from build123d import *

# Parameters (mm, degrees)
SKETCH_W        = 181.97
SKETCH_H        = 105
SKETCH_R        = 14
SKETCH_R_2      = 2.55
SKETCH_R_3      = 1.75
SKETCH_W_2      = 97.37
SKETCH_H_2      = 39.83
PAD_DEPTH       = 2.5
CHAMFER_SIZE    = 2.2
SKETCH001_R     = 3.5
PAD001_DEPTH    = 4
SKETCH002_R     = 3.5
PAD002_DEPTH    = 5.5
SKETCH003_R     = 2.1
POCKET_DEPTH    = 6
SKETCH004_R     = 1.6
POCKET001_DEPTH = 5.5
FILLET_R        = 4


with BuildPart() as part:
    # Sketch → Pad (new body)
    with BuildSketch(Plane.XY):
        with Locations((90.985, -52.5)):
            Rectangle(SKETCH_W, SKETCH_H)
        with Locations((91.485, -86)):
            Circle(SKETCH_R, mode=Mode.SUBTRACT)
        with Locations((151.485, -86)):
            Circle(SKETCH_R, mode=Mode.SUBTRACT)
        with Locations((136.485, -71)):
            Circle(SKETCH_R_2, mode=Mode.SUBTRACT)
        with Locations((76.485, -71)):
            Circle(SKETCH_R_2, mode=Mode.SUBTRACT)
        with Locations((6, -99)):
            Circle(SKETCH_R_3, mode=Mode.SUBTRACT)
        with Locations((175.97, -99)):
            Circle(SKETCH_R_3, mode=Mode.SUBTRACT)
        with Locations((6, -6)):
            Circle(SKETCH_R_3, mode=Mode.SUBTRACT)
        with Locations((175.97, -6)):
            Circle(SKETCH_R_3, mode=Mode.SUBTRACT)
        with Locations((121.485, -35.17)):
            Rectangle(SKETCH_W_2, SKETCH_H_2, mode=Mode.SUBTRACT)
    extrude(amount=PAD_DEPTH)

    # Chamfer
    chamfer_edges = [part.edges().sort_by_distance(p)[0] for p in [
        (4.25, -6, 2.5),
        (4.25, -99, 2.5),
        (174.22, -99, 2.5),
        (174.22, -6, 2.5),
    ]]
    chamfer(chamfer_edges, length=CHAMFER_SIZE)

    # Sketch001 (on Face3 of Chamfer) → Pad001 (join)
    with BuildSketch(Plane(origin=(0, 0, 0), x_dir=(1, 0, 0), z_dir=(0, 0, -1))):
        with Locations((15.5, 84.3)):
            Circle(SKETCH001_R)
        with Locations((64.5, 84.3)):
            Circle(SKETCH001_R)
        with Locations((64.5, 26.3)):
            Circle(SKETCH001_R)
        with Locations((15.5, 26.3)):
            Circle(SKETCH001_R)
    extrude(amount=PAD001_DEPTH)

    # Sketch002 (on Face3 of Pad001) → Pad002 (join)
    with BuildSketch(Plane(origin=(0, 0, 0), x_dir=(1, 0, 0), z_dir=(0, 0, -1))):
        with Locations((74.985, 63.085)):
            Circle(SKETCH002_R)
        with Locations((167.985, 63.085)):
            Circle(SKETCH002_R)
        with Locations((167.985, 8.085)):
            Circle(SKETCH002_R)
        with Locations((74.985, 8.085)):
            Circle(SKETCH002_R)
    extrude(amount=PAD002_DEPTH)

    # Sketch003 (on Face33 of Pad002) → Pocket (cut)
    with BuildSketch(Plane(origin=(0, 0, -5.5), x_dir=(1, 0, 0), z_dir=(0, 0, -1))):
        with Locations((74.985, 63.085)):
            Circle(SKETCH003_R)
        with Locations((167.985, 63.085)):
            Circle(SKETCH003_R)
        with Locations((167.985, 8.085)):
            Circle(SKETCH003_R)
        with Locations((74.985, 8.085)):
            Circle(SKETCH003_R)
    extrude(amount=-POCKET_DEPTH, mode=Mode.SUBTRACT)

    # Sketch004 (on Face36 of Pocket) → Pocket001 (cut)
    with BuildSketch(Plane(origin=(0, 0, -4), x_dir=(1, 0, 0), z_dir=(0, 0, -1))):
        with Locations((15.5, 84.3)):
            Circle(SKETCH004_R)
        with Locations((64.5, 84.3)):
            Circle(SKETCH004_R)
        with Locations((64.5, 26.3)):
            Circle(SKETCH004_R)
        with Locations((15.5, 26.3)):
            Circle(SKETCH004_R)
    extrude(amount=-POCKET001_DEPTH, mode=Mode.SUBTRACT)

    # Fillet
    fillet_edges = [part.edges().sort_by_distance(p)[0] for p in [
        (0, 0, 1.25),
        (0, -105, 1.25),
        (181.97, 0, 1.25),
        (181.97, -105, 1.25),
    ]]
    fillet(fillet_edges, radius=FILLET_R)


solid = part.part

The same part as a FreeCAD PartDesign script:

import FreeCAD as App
import Part
import Sketcher
Q = App.Units.Quantity


def edges_at(feature, points):
    """Names of the edges that pass closest to the given points."""
    edges = feature.Shape.Edges
    near = lambda p: min(range(len(edges)), key=lambda i: edges[i].distToShape(Part.Vertex(*p))[0])
    return sorted({f"Edge{near(p) + 1}" for p in points})


def add_polygon(sketch, points):
    """Adds a closed chain of lines whose ends are joined by coincident constraints."""
    first, n = sketch.GeometryCount, len(points)
    for a, b in zip(points, points[1:] + points[:1]):
        sketch.addGeometry(Part.LineSegment(App.Vector(*a, 0), App.Vector(*b, 0)), False)
    for i in range(n):
        sketch.addConstraint(Sketcher.Constraint("Coincident", first + i, 2, first + (i + 1) % n, 1))

doc = App.newDocument("Part")
params = doc.addObject("Spreadsheet::Sheet", "Params")
for row, (alias, value) in enumerate([
    ("sketch1_diameter", "28 mm"),
    ("sketch1_diameter2", "3.5 mm"),
    ("sketch1_diameter3", "5.1 mm"),
    ("sketch1_height", "105 mm"),
    ("sketch1_width", "181.97 mm"),
    ("pad1_length", "2.5 mm"),
    ("chamfer_size", "2.2 mm"),
    ("sketch2_diameter", "7 mm"),
    ("pad2_length", "4 mm"),
    ("sketch3_diameter", "7 mm"),
    ("pad3_length", "5.5 mm"),
    ("sketch4_diameter", "4.2 mm"),
    ("pocket1_length", "6 mm"),
    ("sketch5_diameter", "3.2 mm"),
    ("pocket2_length", "5.5 mm"),
    ("fillet_radius", "4 mm"),
], start=1):
    params.set(f"A{row}", alias)
    params.set(f"B{row}", "=" + value)
    params.setAlias(f"B{row}", alias)

body = doc.addObject("PartDesign::Body", "Body")

# Sketch on XY plane
sketch1 = doc.addObject("Sketcher::SketchObject", "Sketch")
body.addObject(sketch1)
sketch1.AttachmentSupport = (doc.XY_Plane, [""])
sketch1.MapMode = "FlatFace"
add_polygon(sketch1, [(0, 0), (0, -105), (182, -105), (182, 0)])  # lines 0-3
sketch1.addGeometry(Part.Circle(App.Vector(6, -99, 0), App.Vector(0, 0, 1), 1.8), False)  # 4
sketch1.addGeometry(Part.Circle(App.Vector(76.5, -71, 0), App.Vector(0, 0, 1), 2.5), False)  # 5
sketch1.addGeometry(Part.Circle(App.Vector(91.5, -86, 0), App.Vector(0, 0, 1), 14), False)  # 6
sketch1.addGeometry(Part.Circle(App.Vector(176, -99, 0), App.Vector(0, 0, 1), 1.8), False)  # 7
sketch1.addGeometry(Part.Circle(App.Vector(151.5, -86, 0), App.Vector(0, 0, 1), 14), False)  # 8
sketch1.addGeometry(Part.Circle(App.Vector(136.5, -71, 0), App.Vector(0, 0, 1), 2.5), False)  # 9
sketch1.addGeometry(Part.Circle(App.Vector(6, -6, 0), App.Vector(0, 0, 1), 1.8), False)  # 10
add_polygon(sketch1, [(170.2, -55.1), (72.8, -55.1), (72.8, -15.3), (170.2, -15.3)])  # lines 11-14
sketch1.addGeometry(Part.Circle(App.Vector(176, -6, 0), App.Vector(0, 0, 1), 1.8), False)  # 15
sketch1.addConstraint(Sketcher.Constraint("Vertical", 0))
sketch1.addConstraint(Sketcher.Constraint("Horizontal", 1))
sketch1.addConstraint(Sketcher.Constraint("Vertical", 2))
sketch1.addConstraint(Sketcher.Constraint("Horizontal", 3))
sketch1.addConstraint(Sketcher.Constraint("Horizontal", 11))
sketch1.addConstraint(Sketcher.Constraint("Vertical", 12))
sketch1.addConstraint(Sketcher.Constraint("Horizontal", 13))
sketch1.addConstraint(Sketcher.Constraint("Vertical", 14))
sketch1.addConstraint(Sketcher.Constraint("Coincident", 3, 2, -1, 1))
sketch1.addConstraint(Sketcher.Constraint("Equal", 4, 7))
sketch1.addConstraint(Sketcher.Constraint("Equal", 6, 8))
sketch1.addConstraint(Sketcher.Constraint("Equal", 5, 9))
sketch1.addConstraint(Sketcher.Constraint("Equal", 7, 10))
sketch1.addConstraint(Sketcher.Constraint("Equal", 10, 15))
sketch1.addConstraint(Sketcher.Constraint("Horizontal", 4, 3, 7, 3))
sketch1.addConstraint(Sketcher.Constraint("Horizontal", 6, 3, 8, 3))
sketch1.addConstraint(Sketcher.Constraint("Horizontal", 5, 3, 9, 3))
sketch1.addConstraint(Sketcher.Constraint("Horizontal", 10, 3, 15, 3))
sketch1.addConstraint(Sketcher.Constraint("Vertical", 4, 3, 10, 3))
sketch1.addConstraint(Sketcher.Constraint("Vertical", 7, 3, 15, 3))
sketch1.addConstraint(Sketcher.Constraint("Diameter", 6, Q("28 mm")))
sketch1.addConstraint(Sketcher.Constraint("Diameter", 4, Q("3.5 mm")))
sketch1.addConstraint(Sketcher.Constraint("Diameter", 5, Q("5.1 mm")))
sketch1.addConstraint(Sketcher.Constraint("DistanceY", 0, 2, 0, 1, Q("105 mm")))
sketch1.addConstraint(Sketcher.Constraint("DistanceX", -1, 1, 4, 3, Q("6 mm")))
sketch1.addConstraint(Sketcher.Constraint("DistanceY", 4, 3, -1, 1, Q("99 mm")))
sketch1.addConstraint(Sketcher.Constraint("DistanceY", 5, 3, -1, 1, Q("71 mm")))
sketch1.addConstraint(Sketcher.Constraint("DistanceY", 6, 3, -1, 1, Q("86 mm")))
sketch1.addConstraint(Sketcher.Constraint("DistanceY", 10, 3, -1, 1, Q("6 mm")))
sketch1.addConstraint(Sketcher.Constraint("DistanceX", 5, 3, 6, 3, Q("15 mm")))
sketch1.addConstraint(Sketcher.Constraint("DistanceX", 6, 3, 8, 3, Q("60 mm")))
sketch1.addConstraint(Sketcher.Constraint("DistanceX", 9, 3, 8, 3, Q("15 mm")))
sketch1.addConstraint(Sketcher.Constraint("DistanceX", 7, 3, 1, 2, Q("6 mm")))
sketch1.addConstraint(Sketcher.Constraint("DistanceX", 1, 1, 1, 2, Q("181.97 mm")))
sketch1.addConstraint(Sketcher.Constraint("DistanceX", 11, 2, 11, 1, Q("97.37 mm")))
sketch1.addConstraint(Sketcher.Constraint("DistanceY", 12, 1, 12, 2, Q("39.83 mm")))
sketch1.addConstraint(Sketcher.Constraint("DistanceX", -1, 1, 11, 2, Q("72.8 mm")))
sketch1.addConstraint(Sketcher.Constraint("DistanceX", -1, 1, 5, 3, Q("76.485 mm")))
sketch1.addConstraint(Sketcher.Constraint("DistanceY", 11, 2, -1, 1, Q("55.085 mm")))
sketch1.setExpression("Constraints[28]", "Params.sketch1_diameter")
sketch1.setExpression("Constraints[29]", "Params.sketch1_diameter2")
sketch1.setExpression("Constraints[30]", "Params.sketch1_diameter3")
sketch1.setExpression("Constraints[31]", "Params.sketch1_height")
sketch1.setExpression("Constraints[41]", "Params.sketch1_width")
pad1 = doc.addObject("PartDesign::Pad", "Pad")
body.addObject(pad1)
pad1.Profile = sketch1
pad1.setExpression("Length", "Params.pad1_length")
doc.recompute()

chamfer = doc.addObject("PartDesign::Chamfer", "Chamfer")
body.addObject(chamfer)
chamfer.Base = (pad1, edges_at(pad1, [
    (4.25, -6, 2.5),
    (4.25, -99, 2.5),
    (174.22, -99, 2.5),
    (174.22, -6, 2.5),
]))
chamfer.setExpression("Size", "Params.chamfer_size")

# Sketch on XY plane
sketch2 = doc.addObject("Sketcher::SketchObject", "Sketch001")
body.addObject(sketch2)
sketch2.AttachmentSupport = (doc.XY_Plane, [""])
sketch2.MapMode = "FlatFace"
sketch2.addGeometry(Part.Circle(App.Vector(15.5, -84.3, 0), App.Vector(0, 0, 1), 3.5), False)
sketch2.addGeometry(Part.Circle(App.Vector(64.5, -84.3, 0), App.Vector(0, 0, 1), 3.5), False)
sketch2.addGeometry(Part.Circle(App.Vector(64.5, -26.3, 0), App.Vector(0, 0, 1), 3.5), False)
sketch2.addGeometry(Part.Circle(App.Vector(15.5, -26.3, 0), App.Vector(0, 0, 1), 3.5), False)
sketch2.addConstraint(Sketcher.Constraint("Equal", 0, 1))
sketch2.addConstraint(Sketcher.Constraint("Equal", 1, 2))
sketch2.addConstraint(Sketcher.Constraint("Equal", 2, 3))
sketch2.addConstraint(Sketcher.Constraint("Horizontal", 0, 3, 1, 3))
sketch2.addConstraint(Sketcher.Constraint("Horizontal", 2, 3, 3, 3))
sketch2.addConstraint(Sketcher.Constraint("Vertical", 1, 3, 2, 3))
sketch2.addConstraint(Sketcher.Constraint("Vertical", 0, 3, 3, 3))
sketch2.addConstraint(Sketcher.Constraint("Diameter", 0, Q("7 mm")))
sketch2.addConstraint(Sketcher.Constraint("DistanceX", 0, 3, 1, 3, Q("49 mm")))
sketch2.addConstraint(Sketcher.Constraint("DistanceY", 1, 3, 2, 3, Q("58 mm")))
sketch2.addConstraint(Sketcher.Constraint("DistanceX", -1, 1, 0, 3, Q("15.5 mm")))
sketch2.addConstraint(Sketcher.Constraint("DistanceY", 0, 3, -1, 1, Q("84.3 mm")))
sketch2.setExpression("Constraints[7]", "Params.sketch2_diameter")
pad2 = doc.addObject("PartDesign::Pad", "Pad001")
body.addObject(pad2)
pad2.Profile = sketch2
pad2.setExpression("Length", "Params.pad2_length")
pad2.Reversed = True

# Sketch on XY plane
sketch3 = doc.addObject("Sketcher::SketchObject", "Sketch002")
body.addObject(sketch3)
sketch3.AttachmentSupport = (doc.XY_Plane, [""])
sketch3.MapMode = "FlatFace"
sketch3.addGeometry(Part.Circle(App.Vector(75, -63.1, 0), App.Vector(0, 0, 1), 3.5), False)
sketch3.addGeometry(Part.Circle(App.Vector(168, -63.1, 0), App.Vector(0, 0, 1), 3.5), False)
sketch3.addGeometry(Part.Circle(App.Vector(168, -8.1, 0), App.Vector(0, 0, 1), 3.5), False)
sketch3.addGeometry(Part.Circle(App.Vector(75, -8.1, 0), App.Vector(0, 0, 1), 3.5), False)
sketch3.addConstraint(Sketcher.Constraint("Equal", 0, 1))
sketch3.addConstraint(Sketcher.Constraint("Equal", 1, 2))
sketch3.addConstraint(Sketcher.Constraint("Equal", 2, 3))
sketch3.addConstraint(Sketcher.Constraint("Horizontal", 0, 3, 1, 3))
sketch3.addConstraint(Sketcher.Constraint("Horizontal", 2, 3, 3, 3))
sketch3.addConstraint(Sketcher.Constraint("Vertical", 1, 3, 2, 3))
sketch3.addConstraint(Sketcher.Constraint("Vertical", 0, 3, 3, 3))
sketch3.addConstraint(Sketcher.Constraint("Diameter", 0, Q("7 mm")))
sketch3.addConstraint(Sketcher.Constraint("DistanceX", 0, 3, 1, 3, Q("93 mm")))
sketch3.addConstraint(Sketcher.Constraint("DistanceY", 1, 3, 2, 3, Q("55 mm")))
sketch3.addConstraint(Sketcher.Constraint("DistanceX", -1, 1, 0, 3, Q("74.985 mm")))
sketch3.addConstraint(Sketcher.Constraint("DistanceY", 0, 3, -1, 1, Q("63.085 mm")))
sketch3.setExpression("Constraints[7]", "Params.sketch3_diameter")
pad3 = doc.addObject("PartDesign::Pad", "Pad002")
body.addObject(pad3)
pad3.Profile = sketch3
pad3.setExpression("Length", "Params.pad3_length")
pad3.Reversed = True

# Sketch on XY plane
sketch4 = doc.addObject("Sketcher::SketchObject", "Sketch003")
body.addObject(sketch4)
sketch4.AttachmentSupport = (doc.XY_Plane, [""])
sketch4.MapMode = "FlatFace"
sketch4.AttachmentOffset = App.Placement(App.Vector(0, 0, -5.5), App.Rotation())
sketch4.addGeometry(Part.Circle(App.Vector(75, -63.1, 0), App.Vector(0, 0, 1), 2.1), False)
sketch4.addGeometry(Part.Circle(App.Vector(168, -63.1, 0), App.Vector(0, 0, 1), 2.1), False)
sketch4.addGeometry(Part.Circle(App.Vector(168, -8.1, 0), App.Vector(0, 0, 1), 2.1), False)
sketch4.addGeometry(Part.Circle(App.Vector(75, -8.1, 0), App.Vector(0, 0, 1), 2.1), False)
sketch4.addConstraint(Sketcher.Constraint("Equal", 0, 1))
sketch4.addConstraint(Sketcher.Constraint("Equal", 1, 2))
sketch4.addConstraint(Sketcher.Constraint("Equal", 2, 3))
sketch4.addConstraint(Sketcher.Constraint("Horizontal", 0, 3, 1, 3))
sketch4.addConstraint(Sketcher.Constraint("Horizontal", 2, 3, 3, 3))
sketch4.addConstraint(Sketcher.Constraint("Vertical", 1, 3, 2, 3))
sketch4.addConstraint(Sketcher.Constraint("Vertical", 0, 3, 3, 3))
sketch4.addConstraint(Sketcher.Constraint("Diameter", 0, Q("4.2 mm")))
sketch4.addConstraint(Sketcher.Constraint("DistanceX", 0, 3, 1, 3, Q("93 mm")))
sketch4.addConstraint(Sketcher.Constraint("DistanceY", 1, 3, 2, 3, Q("55 mm")))
sketch4.addConstraint(Sketcher.Constraint("DistanceX", -1, 1, 0, 3, Q("74.985 mm")))
sketch4.addConstraint(Sketcher.Constraint("DistanceY", 0, 3, -1, 1, Q("63.085 mm")))
sketch4.setExpression("Constraints[7]", "Params.sketch4_diameter")
pocket1 = doc.addObject("PartDesign::Pocket", "Pocket")
body.addObject(pocket1)
pocket1.Profile = sketch4
pocket1.setExpression("Length", "Params.pocket1_length")
pocket1.Reversed = True

# Sketch on XY plane
sketch5 = doc.addObject("Sketcher::SketchObject", "Sketch004")
body.addObject(sketch5)
sketch5.AttachmentSupport = (doc.XY_Plane, [""])
sketch5.MapMode = "FlatFace"
sketch5.AttachmentOffset = App.Placement(App.Vector(0, 0, -4), App.Rotation())
sketch5.addGeometry(Part.Circle(App.Vector(15.5, -84.3, 0), App.Vector(0, 0, 1), 1.6), False)
sketch5.addGeometry(Part.Circle(App.Vector(64.5, -84.3, 0), App.Vector(0, 0, 1), 1.6), False)
sketch5.addGeometry(Part.Circle(App.Vector(64.5, -26.3, 0), App.Vector(0, 0, 1), 1.6), False)
sketch5.addGeometry(Part.Circle(App.Vector(15.5, -26.3, 0), App.Vector(0, 0, 1), 1.6), False)
sketch5.addConstraint(Sketcher.Constraint("Equal", 0, 1))
sketch5.addConstraint(Sketcher.Constraint("Equal", 1, 2))
sketch5.addConstraint(Sketcher.Constraint("Equal", 2, 3))
sketch5.addConstraint(Sketcher.Constraint("Horizontal", 0, 3, 1, 3))
sketch5.addConstraint(Sketcher.Constraint("Horizontal", 2, 3, 3, 3))
sketch5.addConstraint(Sketcher.Constraint("Vertical", 1, 3, 2, 3))
sketch5.addConstraint(Sketcher.Constraint("Vertical", 0, 3, 3, 3))
sketch5.addConstraint(Sketcher.Constraint("Diameter", 0, Q("3.2 mm")))
sketch5.addConstraint(Sketcher.Constraint("DistanceX", 0, 3, 1, 3, Q("49 mm")))
sketch5.addConstraint(Sketcher.Constraint("DistanceY", 1, 3, 2, 3, Q("58 mm")))
sketch5.addConstraint(Sketcher.Constraint("DistanceX", -1, 1, 0, 3, Q("15.5 mm")))
sketch5.addConstraint(Sketcher.Constraint("DistanceY", 0, 3, -1, 1, Q("84.3 mm")))
sketch5.setExpression("Constraints[7]", "Params.sketch5_diameter")
pocket2 = doc.addObject("PartDesign::Pocket", "Pocket001")
body.addObject(pocket2)
pocket2.Profile = sketch5
pocket2.setExpression("Length", "Params.pocket2_length")
pocket2.Reversed = True
doc.recompute()

fillet = doc.addObject("PartDesign::Fillet", "Fillet")
body.addObject(fillet)
fillet.Base = (pocket2, edges_at(pocket2, [
    (0, 0, 1.25),
    (0, -105, 1.25),
    (181.97, 0, 1.25),
    (181.97, -105, 1.25),
]))
fillet.setExpression("Radius", "Params.fillet_radius")

doc.recompute()
